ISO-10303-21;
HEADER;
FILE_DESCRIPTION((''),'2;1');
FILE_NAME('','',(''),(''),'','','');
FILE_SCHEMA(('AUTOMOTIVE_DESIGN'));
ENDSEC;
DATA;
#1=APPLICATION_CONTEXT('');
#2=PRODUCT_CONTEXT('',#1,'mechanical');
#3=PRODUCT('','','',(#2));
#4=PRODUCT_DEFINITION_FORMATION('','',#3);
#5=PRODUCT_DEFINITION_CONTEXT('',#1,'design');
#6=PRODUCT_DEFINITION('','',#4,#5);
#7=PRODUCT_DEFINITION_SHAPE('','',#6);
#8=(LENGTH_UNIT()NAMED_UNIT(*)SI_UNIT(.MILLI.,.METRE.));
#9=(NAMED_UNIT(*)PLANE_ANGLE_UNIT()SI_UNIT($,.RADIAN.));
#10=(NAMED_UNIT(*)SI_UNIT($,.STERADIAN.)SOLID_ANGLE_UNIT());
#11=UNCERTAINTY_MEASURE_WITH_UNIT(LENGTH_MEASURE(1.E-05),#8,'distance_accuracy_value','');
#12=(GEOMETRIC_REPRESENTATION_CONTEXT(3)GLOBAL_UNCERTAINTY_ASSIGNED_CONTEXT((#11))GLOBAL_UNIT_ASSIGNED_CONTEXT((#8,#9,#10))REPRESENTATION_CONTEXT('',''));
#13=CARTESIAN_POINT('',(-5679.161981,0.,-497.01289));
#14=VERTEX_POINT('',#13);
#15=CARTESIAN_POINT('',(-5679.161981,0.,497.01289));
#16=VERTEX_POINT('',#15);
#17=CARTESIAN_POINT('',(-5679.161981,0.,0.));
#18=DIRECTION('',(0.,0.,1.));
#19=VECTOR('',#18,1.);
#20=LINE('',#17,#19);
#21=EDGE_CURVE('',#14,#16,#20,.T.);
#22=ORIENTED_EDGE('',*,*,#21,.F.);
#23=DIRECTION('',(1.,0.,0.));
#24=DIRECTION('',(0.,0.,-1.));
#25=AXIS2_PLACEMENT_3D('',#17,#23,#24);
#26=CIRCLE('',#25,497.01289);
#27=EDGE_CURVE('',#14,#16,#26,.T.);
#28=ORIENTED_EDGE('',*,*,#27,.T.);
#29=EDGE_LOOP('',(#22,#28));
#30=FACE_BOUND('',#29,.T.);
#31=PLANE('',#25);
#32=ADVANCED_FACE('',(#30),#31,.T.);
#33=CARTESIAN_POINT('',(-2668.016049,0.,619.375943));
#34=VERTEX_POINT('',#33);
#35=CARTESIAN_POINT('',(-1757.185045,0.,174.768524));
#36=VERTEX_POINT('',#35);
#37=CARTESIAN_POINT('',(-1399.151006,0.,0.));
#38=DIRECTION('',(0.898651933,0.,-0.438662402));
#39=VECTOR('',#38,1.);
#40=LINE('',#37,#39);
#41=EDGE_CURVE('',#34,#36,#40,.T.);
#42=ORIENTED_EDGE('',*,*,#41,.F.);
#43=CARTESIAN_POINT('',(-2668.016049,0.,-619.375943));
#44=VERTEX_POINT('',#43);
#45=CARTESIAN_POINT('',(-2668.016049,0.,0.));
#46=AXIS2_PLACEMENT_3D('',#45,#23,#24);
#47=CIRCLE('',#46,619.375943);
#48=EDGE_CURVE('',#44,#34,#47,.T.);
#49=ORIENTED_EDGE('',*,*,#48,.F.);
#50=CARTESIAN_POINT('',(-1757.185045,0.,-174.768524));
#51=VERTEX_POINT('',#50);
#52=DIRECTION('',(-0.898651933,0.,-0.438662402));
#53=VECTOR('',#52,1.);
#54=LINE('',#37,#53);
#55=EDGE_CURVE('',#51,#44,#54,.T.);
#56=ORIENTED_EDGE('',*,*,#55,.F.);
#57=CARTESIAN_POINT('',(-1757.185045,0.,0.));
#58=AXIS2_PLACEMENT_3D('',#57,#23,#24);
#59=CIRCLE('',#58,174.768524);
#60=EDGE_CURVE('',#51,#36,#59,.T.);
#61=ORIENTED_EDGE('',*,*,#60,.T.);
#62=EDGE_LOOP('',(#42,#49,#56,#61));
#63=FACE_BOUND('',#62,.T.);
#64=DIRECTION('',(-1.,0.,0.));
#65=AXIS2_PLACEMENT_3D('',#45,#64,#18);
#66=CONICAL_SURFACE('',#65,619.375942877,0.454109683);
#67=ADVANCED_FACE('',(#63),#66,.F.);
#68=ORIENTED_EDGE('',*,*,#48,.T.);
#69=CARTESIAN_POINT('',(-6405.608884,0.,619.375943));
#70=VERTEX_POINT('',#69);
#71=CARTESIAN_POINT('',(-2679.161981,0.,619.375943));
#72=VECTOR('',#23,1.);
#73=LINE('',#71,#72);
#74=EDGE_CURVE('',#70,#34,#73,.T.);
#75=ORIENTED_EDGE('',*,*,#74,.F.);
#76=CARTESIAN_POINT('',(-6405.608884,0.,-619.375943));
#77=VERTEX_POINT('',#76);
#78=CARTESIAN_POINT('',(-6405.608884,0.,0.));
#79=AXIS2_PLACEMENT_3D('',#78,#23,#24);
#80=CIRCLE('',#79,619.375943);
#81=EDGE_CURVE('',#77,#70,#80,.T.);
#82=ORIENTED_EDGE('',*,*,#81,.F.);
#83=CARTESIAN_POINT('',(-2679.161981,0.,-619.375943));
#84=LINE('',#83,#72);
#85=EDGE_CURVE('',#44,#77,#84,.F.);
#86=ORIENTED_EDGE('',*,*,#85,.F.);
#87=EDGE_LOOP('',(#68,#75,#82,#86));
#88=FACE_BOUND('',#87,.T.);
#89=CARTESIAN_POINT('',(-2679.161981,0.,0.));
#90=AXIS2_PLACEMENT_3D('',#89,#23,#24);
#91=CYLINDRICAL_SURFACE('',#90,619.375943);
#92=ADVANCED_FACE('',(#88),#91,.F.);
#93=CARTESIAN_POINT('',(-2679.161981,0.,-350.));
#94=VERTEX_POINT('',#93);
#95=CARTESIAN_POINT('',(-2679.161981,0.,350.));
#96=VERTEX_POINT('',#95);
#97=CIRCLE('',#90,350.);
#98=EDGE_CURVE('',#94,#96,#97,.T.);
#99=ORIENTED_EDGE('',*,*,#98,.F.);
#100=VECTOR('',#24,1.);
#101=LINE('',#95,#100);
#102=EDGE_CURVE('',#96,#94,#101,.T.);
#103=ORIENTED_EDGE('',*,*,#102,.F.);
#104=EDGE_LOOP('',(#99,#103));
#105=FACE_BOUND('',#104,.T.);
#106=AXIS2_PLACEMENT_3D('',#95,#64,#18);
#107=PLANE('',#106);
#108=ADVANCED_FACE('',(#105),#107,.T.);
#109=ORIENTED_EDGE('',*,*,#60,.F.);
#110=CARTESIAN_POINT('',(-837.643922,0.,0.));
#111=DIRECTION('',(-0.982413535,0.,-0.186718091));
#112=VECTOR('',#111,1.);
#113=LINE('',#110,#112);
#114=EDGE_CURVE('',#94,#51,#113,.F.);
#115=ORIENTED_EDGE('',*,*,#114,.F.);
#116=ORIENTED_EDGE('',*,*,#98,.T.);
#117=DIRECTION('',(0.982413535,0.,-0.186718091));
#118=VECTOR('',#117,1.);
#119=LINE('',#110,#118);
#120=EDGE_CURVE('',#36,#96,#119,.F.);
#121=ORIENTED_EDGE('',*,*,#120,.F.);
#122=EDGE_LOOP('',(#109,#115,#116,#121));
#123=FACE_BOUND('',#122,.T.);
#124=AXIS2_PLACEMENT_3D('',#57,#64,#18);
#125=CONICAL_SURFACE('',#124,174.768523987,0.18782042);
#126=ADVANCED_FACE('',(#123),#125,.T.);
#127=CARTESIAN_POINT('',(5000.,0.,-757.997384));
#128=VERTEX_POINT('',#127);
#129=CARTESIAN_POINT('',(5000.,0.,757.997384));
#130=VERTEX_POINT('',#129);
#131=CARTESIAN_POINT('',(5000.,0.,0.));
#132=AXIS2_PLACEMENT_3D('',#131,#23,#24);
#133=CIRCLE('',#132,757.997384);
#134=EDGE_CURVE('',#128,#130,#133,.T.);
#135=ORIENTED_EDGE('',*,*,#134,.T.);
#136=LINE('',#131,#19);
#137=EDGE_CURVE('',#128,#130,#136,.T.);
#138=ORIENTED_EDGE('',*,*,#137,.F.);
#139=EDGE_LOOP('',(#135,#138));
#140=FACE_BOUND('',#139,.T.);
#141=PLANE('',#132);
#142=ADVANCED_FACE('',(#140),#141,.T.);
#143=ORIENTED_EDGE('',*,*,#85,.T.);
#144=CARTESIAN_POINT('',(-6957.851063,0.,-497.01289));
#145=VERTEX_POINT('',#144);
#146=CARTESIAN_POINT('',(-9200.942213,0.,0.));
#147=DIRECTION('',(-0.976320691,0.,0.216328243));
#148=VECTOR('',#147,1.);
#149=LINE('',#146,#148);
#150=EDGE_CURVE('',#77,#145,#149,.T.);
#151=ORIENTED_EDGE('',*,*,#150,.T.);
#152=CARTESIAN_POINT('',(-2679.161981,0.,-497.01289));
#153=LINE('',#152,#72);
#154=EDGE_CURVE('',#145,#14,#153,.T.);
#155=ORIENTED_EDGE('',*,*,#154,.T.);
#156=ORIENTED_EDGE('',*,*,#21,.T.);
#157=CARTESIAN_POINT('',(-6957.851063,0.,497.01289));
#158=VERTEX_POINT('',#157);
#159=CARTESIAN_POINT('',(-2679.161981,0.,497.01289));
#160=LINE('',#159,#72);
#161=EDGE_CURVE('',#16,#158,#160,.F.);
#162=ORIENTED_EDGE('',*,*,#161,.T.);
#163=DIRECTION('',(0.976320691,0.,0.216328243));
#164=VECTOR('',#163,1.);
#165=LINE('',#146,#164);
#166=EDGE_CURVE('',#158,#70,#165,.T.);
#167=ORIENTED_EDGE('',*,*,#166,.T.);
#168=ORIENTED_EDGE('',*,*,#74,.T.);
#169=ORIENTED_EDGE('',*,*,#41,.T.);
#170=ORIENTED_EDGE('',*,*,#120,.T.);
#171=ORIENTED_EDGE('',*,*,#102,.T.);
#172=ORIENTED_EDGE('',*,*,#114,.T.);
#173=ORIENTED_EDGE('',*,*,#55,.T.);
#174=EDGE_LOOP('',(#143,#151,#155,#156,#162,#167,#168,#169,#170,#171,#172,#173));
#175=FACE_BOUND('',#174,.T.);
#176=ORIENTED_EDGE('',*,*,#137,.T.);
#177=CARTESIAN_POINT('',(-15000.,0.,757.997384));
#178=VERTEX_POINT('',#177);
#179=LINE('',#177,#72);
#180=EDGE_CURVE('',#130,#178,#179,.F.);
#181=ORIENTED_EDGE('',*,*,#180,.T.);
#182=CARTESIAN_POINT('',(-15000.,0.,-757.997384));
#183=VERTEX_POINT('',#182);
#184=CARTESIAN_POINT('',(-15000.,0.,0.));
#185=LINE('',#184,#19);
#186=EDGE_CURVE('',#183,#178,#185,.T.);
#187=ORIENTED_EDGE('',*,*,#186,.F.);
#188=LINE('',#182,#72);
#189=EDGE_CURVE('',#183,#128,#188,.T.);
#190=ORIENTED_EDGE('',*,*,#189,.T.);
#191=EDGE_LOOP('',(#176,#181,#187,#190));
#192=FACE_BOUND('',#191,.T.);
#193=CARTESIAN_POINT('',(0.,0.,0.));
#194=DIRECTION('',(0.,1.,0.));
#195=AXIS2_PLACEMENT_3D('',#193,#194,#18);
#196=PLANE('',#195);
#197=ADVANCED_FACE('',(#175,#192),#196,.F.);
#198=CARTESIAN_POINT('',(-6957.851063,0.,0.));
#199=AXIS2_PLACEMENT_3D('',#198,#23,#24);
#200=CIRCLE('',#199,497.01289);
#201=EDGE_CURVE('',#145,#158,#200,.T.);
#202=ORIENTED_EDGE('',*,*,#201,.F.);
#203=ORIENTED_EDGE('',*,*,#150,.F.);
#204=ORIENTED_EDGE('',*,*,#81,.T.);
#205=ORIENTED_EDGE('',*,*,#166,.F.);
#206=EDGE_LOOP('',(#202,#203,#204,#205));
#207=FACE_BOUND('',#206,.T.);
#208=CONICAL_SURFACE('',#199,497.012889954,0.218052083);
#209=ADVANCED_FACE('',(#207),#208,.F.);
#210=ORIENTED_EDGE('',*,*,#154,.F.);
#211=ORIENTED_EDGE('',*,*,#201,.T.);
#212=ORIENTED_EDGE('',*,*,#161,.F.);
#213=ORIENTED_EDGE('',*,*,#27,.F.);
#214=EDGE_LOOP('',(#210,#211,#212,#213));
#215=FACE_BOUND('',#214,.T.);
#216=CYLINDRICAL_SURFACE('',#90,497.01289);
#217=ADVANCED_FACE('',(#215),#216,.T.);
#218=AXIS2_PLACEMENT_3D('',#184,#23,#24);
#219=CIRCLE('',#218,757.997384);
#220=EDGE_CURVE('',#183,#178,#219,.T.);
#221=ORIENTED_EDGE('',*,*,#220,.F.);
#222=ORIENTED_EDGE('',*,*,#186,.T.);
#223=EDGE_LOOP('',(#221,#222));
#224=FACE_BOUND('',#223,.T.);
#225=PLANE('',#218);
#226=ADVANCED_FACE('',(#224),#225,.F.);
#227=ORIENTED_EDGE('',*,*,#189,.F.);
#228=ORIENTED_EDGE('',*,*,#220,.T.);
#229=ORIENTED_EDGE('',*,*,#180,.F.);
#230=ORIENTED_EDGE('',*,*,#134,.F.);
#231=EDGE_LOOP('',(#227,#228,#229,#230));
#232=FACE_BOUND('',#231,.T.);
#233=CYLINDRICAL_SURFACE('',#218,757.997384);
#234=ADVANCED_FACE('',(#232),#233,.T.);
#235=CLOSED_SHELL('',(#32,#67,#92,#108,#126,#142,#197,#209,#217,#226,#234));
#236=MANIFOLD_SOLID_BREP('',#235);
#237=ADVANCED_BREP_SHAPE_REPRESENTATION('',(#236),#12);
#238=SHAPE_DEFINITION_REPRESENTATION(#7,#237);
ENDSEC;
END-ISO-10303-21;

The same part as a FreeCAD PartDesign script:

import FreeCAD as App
import Part
import Sketcher

V = App.Vector
Q = App.Units.Quantity


def add_polygon(sketch, points):
    """Adds a closed chain of lines whose ends are joined by coincident constraints."""
    first, n = sketch.GeometryCount, len(points)
    for a, b in zip(points, points[1:] + points[:1]):
        sketch.addGeometry(Part.LineSegment(App.Vector(*a, 0), App.Vector(*b, 0)), False)
    for i in range(n):
        sketch.addConstraint(Sketcher.Constraint("Coincident", first + i, 2, first + (i + 1) % n, 1))

doc = App.newDocument("Part")
params = doc.addObject("Spreadsheet::Sheet", "Params")
for row, (alias, value) in enumerate([
    ("sketch1_width", "3000 mm"),
    ("sketch1_height", "350 mm"),
    ("revolution_angle", "360 deg"),
    ("pad1_length", "5000 mm"),
    ("pad1_length2", "15000 mm"),
], start=1):
    params.set(f"A{row}", alias)
    params.set(f"B{row}", "=" + value)
    params.setAlias(f"B{row}", alias)

body = doc.addObject("PartDesign::Body", "Body")

# Sketch on XZ plane
sketch1 = body.newObject("Sketcher::SketchObject", "Sketch")
sketch1.AttachmentSupport = (doc.getObject("XZ_Plane"), [""])
sketch1.MapMode = "FlatFace"
add_polygon(sketch1, [(-2668, 619), (-1757, 175), (-2679, 350), (-2679, 0), (-5679, 0), (-5679, 497), (-6958, 497), (-6406, 619)])  # lines 0-7
sketch1.addConstraint([
    Sketcher.Constraint("Vertical", 2),
    Sketcher.Constraint("Horizontal", 3),
    Sketcher.Constraint("Vertical", 4),
    Sketcher.Constraint("Horizontal", 5),
    Sketcher.Constraint("Horizontal", 7),
    Sketcher.Constraint("PointOnObject", 2, 2, -1),
    Sketcher.Constraint("DistanceX", 3, 2, 3, 1, Q("3000 mm")),
    Sketcher.Constraint("DistanceY", 2, 2, 2, 1, Q("350 mm")),
    Sketcher.Constraint("Distance", 0, Q("1013.552601 mm")),
    Sketcher.Constraint("DistanceX", 5, 2, 5, 1, Q("1278.689081 mm")),
    Sketcher.Constraint("DistanceY", 4, 1, 4, 2, Q("497.01289 mm")),
    Sketcher.Constraint("Distance", 6, Q("565.63605 mm")),
    Sketcher.Constraint("DistanceX", 7, 1, 7, 2, Q("3737.592835 mm")),
    Sketcher.Constraint("DistanceX", 1, 2, -1, 1, Q("2679.161981 mm")),
    Sketcher.Constraint("DistanceX", 7, 2, -1, 1, Q("2668.016049 mm")),
    Sketcher.Constraint("DistanceY", 0, 2, 7, 2, Q("444.607419 mm")),
])
sketch1.setExpression("Constraints[14]", "Params.sketch1_width")
sketch1.setExpression("Constraints[15]", "Params.sketch1_height")
revolution = body.newObject("PartDesign::Revolution", "Revolution")
revolution.Profile = sketch1
revolution.ReferenceAxis = (sketch1, ["H_Axis"])
revolution.setExpression("Angle", "Params.revolution_angle")
body2 = doc.addObject("PartDesign::Body", "Body001")

# Sketch on YZ plane
sketch2 = body2.newObject("Sketcher::SketchObject", "Sketch001")
sketch2.AttachmentSupport = (doc.getObject("YZ_Plane001"), [""])
sketch2.MapMode = "FlatFace"
sketch2.addGeometry(Part.Circle(V(0, 0, 0), V(0, 0, 1), 758), False)
sketch2.addConstraint([
    Sketcher.Constraint("Coincident", 0, 3, -1, 1),
    Sketcher.Constraint("Diameter", 0, Q("1515.994768 mm")),
])
pad1 = body2.newObject("PartDesign::Pad", "Pad")
pad1.Profile = sketch2
pad1.Type = "TwoLengths"
pad1.setExpression("Length", "Params.pad1_length")
pad1.setExpression("Length2", "Params.pad1_length2")
doc.recompute()

boolean = body2.newObject("PartDesign::Boolean", "Boolean")
boolean.Type = "Cut"
boolean.addObjects([body])

# Sketch on XZ plane
sketch3 = body2.newObject("Sketcher::SketchObject", "Sketch002")
sketch3.AttachmentSupport = (doc.getObject("XZ_Plane001"), [""])
sketch3.MapMode = "FlatFace"
add_polygon(sketch3, [(6326, 2080), (6326, -1560), (-16656, -1560), (-16656, 2080)])  # lines 0-3
sketch3.addConstraint([
    Sketcher.Constraint("Vertical", 0),
    Sketcher.Constraint("Horizontal", 1),
    Sketcher.Constraint("Vertical", 2),
    Sketcher.Constraint("Horizontal", 3),
    Sketcher.Constraint("DistanceX", 1, 2, 1, 1, Q("22982.636608 mm")),
    Sketcher.Constraint("DistanceY", 0, 2, 0, 1, Q("3639.943339 mm")),
    Sketcher.Constraint("DistanceX", -1, 1, 0, 2, Q("6326.42542 mm")),
    Sketcher.Constraint("DistanceY", 0, 2, -1, 1, Q("1559.590925 mm")),
])
pocket1 = body2.newObject("PartDesign::Pocket", "Pocket")
pocket1.Profile = sketch3
pocket1.Type = "ThroughAll"
pocket1.Reversed = True

doc.recompute()
